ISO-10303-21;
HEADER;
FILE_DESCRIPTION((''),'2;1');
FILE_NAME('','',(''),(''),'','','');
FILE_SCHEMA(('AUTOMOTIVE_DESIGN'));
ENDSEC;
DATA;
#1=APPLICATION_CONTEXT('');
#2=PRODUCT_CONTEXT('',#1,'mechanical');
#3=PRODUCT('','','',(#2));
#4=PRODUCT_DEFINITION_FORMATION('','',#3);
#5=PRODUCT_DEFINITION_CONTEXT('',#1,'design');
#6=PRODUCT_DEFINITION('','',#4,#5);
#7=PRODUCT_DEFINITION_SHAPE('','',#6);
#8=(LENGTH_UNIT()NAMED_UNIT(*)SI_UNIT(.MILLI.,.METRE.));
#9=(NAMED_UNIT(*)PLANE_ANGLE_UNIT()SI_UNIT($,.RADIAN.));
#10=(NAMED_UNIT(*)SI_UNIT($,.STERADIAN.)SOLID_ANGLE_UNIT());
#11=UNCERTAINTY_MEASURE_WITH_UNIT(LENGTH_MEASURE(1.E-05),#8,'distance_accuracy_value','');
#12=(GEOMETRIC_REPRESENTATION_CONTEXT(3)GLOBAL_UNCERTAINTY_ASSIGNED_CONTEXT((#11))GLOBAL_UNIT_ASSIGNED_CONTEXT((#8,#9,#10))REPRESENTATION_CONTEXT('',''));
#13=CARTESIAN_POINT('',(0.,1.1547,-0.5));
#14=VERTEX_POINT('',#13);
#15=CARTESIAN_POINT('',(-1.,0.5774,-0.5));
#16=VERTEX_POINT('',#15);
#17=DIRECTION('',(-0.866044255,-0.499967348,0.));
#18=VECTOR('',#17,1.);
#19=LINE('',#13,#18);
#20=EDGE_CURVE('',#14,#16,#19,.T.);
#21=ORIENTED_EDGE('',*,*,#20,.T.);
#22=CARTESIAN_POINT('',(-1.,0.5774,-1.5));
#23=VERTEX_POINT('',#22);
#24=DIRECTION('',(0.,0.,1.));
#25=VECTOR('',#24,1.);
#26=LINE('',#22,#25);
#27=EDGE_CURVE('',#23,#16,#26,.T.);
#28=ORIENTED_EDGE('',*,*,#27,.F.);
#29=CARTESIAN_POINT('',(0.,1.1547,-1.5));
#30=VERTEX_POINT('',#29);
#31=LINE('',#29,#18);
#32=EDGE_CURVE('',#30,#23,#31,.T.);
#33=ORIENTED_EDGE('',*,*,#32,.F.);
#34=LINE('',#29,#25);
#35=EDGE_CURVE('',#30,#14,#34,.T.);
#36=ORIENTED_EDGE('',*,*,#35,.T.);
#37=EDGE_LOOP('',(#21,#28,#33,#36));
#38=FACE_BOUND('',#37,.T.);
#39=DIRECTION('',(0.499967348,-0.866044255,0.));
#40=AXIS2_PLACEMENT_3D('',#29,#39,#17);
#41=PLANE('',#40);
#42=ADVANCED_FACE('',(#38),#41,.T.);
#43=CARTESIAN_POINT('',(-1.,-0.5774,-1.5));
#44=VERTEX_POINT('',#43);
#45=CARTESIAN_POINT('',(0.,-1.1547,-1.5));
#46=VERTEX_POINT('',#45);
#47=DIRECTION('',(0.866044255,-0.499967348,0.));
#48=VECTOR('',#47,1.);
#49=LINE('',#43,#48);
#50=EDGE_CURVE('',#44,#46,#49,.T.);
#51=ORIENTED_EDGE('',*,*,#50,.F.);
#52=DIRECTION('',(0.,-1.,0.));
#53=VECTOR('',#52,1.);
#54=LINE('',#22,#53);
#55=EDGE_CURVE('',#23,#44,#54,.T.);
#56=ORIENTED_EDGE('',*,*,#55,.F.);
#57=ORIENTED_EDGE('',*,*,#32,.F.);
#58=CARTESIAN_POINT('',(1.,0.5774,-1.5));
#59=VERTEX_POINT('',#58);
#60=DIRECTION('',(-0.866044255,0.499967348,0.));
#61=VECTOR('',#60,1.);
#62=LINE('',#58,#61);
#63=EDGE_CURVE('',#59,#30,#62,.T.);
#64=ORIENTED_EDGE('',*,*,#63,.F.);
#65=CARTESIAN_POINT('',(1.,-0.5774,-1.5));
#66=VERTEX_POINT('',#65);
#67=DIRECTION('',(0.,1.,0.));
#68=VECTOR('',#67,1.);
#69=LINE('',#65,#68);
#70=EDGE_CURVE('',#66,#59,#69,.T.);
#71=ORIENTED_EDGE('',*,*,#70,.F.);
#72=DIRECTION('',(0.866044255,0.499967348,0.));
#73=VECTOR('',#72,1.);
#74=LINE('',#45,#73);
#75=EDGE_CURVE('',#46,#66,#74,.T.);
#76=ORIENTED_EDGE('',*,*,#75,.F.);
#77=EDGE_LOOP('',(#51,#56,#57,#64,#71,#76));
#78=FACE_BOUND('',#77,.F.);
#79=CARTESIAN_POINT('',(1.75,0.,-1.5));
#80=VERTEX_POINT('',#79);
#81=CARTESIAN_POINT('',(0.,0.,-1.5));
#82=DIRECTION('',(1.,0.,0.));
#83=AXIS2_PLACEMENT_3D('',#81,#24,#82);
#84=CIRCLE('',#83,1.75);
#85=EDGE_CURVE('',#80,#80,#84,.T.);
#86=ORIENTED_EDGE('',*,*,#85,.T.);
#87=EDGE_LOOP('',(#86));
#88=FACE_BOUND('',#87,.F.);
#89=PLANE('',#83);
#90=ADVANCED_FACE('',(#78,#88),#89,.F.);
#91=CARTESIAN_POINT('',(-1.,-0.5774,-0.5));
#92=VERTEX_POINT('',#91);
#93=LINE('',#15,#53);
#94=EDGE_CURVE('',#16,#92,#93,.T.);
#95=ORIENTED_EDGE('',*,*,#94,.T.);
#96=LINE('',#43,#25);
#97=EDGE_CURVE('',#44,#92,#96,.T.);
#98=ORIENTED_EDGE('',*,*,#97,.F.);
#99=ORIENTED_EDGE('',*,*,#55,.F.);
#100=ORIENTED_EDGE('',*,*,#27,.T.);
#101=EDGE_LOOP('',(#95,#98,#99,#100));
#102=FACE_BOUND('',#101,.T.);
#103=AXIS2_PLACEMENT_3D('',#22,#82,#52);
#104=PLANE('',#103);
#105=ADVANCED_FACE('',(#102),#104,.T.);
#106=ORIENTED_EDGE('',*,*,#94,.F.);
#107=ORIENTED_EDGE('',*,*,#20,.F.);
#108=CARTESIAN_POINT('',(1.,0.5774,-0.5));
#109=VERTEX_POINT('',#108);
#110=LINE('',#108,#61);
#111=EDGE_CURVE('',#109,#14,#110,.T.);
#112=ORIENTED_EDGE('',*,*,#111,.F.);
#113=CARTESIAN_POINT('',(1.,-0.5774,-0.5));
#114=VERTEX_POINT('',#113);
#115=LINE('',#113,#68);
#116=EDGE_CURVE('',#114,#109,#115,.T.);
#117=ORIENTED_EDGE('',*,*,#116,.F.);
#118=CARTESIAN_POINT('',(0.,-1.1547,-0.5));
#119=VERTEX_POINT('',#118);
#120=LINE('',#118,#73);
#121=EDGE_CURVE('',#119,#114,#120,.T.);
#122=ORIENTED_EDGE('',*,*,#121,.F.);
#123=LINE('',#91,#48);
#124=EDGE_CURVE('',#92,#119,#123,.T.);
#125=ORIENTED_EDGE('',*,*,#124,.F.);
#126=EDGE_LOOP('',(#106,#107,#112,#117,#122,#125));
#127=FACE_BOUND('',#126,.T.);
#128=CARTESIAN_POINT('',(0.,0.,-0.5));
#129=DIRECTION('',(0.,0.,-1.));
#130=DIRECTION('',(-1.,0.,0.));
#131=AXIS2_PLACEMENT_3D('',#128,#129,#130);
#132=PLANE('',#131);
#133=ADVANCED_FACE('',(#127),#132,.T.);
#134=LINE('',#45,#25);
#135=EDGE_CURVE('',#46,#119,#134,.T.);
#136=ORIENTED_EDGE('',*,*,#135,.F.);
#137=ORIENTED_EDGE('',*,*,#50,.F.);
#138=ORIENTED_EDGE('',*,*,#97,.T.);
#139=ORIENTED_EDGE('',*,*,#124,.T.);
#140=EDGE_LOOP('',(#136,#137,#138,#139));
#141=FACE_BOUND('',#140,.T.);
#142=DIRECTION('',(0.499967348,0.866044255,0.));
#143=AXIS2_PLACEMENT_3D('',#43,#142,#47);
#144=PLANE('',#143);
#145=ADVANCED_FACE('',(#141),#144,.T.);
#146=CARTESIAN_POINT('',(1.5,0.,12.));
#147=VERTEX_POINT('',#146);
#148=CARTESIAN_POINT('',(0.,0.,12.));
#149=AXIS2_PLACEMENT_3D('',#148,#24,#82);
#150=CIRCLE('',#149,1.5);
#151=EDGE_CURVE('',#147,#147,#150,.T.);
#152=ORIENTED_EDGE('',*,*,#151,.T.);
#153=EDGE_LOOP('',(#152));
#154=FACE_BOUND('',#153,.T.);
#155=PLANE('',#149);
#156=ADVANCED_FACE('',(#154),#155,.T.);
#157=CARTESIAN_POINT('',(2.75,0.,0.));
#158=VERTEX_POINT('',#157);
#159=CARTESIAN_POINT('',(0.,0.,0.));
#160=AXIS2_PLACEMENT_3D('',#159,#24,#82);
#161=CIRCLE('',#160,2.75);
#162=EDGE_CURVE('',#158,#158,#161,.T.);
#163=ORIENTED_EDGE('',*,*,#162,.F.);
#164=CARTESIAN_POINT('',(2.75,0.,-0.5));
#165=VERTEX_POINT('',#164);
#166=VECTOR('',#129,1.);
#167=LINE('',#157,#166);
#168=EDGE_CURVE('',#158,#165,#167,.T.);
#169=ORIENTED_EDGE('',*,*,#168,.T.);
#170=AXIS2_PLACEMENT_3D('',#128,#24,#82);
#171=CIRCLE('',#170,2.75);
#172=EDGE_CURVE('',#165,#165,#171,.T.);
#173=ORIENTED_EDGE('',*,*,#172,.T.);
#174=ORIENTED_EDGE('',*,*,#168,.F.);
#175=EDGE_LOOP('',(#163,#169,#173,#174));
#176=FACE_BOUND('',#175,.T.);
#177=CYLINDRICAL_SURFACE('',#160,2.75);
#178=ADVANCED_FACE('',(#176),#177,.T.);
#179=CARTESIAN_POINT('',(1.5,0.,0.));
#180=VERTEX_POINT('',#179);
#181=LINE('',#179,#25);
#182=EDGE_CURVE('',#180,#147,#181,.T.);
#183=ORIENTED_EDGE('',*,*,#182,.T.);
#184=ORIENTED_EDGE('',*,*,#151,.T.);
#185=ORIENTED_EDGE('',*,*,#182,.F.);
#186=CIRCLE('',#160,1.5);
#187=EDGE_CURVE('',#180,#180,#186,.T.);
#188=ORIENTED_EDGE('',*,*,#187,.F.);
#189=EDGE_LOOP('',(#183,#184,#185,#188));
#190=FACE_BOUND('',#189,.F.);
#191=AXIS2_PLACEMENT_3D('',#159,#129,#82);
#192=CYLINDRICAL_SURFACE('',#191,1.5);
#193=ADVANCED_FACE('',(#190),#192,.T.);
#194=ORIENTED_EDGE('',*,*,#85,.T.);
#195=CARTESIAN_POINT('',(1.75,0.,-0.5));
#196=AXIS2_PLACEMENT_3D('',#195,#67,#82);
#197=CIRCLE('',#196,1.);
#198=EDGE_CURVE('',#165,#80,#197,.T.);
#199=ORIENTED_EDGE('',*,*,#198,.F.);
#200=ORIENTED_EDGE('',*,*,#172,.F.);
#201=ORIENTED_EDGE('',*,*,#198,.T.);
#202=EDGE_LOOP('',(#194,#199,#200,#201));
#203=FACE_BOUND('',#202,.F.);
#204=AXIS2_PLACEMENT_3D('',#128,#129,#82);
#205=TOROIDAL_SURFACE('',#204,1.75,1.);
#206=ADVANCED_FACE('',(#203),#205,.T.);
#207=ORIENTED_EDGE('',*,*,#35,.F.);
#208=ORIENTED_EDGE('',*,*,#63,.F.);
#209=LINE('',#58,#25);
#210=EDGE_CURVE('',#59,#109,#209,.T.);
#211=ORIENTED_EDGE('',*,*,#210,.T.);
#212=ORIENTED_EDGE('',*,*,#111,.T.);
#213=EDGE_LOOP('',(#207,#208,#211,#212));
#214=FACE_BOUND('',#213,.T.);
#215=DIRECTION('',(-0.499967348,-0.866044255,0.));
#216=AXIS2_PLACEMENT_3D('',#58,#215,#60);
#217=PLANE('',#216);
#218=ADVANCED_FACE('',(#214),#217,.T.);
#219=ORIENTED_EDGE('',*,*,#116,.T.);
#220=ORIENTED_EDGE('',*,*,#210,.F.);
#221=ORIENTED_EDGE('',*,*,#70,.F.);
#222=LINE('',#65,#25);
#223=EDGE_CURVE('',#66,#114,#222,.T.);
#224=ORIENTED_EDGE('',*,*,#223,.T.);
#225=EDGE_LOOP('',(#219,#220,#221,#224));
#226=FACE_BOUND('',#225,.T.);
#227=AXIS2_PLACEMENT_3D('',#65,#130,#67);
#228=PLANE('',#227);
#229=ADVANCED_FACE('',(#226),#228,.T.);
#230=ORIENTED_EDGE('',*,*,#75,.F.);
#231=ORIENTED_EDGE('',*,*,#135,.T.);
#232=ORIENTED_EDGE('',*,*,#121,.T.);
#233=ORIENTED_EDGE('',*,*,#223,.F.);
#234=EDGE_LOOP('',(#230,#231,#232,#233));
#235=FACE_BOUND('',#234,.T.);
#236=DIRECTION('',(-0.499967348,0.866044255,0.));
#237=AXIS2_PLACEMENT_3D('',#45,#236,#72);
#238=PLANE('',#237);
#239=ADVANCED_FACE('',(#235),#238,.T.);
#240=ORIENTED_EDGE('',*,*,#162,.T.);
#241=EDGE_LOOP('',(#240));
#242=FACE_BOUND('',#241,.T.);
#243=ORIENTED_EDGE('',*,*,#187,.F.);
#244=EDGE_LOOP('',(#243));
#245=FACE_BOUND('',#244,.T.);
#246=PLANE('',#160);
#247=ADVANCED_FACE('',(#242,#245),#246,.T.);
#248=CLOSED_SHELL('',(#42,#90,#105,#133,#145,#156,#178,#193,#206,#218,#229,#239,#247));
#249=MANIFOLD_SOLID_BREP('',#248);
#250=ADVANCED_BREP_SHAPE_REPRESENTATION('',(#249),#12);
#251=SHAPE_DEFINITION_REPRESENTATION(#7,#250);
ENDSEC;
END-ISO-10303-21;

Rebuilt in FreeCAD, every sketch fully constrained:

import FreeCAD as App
import Part
import Sketcher

V = App.Vector
Q = App.Units.Quantity


def edges_at(feature, points):
    """Names of the edges that pass closest to the given points."""
    edges = feature.Shape.Edges
    near = lambda p: min(range(len(edges)), key=lambda i: edges[i].distToShape(Part.Vertex(*p))[0])
    return sorted({f"Edge{near(p) + 1}" for p in points})

doc = App.newDocument("Part")
params = doc.addObject("Spreadsheet::Sheet", "Params")
for row, (alias, value) in enumerate([
    ("sketch1_diameter", "3 mm"),
    ("pad1_length", "12 mm"),
    ("sketch2_diameter", "5.5 mm"),
    ("pad2_length", "1.5 mm"),
    ("pocket1_length", "1 mm"),
    ("fillet_radius", "1 mm"),
], start=1):
    params.set(f"A{row}", alias)
    params.set(f"B{row}", "=" + value)
    params.setAlias(f"B{row}", alias)

body = doc.addObject("PartDesign::Body", "Body")

sketch1 = doc.addObject("Sketcher::SketchObject", "Sketch")
body.addObject(sketch1)
sketch1.AttachmentSupport = (doc.XY_Plane, [""])
sketch1.MapMode = "FlatFace"
sketch1.addGeometry(Part.Circle(V(0, 0, 0), V(0, 0, 1), 1.5), False)
sketch1.addConstraint([
    Sketcher.Constraint("Coincident", 0, 3, -1, 1),
    Sketcher.Constraint("Diameter", 0, Q("3 mm")),
])
sketch1.setExpression("Constraints[1]", "Params.sketch1_diameter")
pad1 = doc.addObject("PartDesign::Pad", "Pad")
body.addObject(pad1)
pad1.Profile = sketch1
pad1.setExpression("Length", "Params.pad1_length")

sketch2 = doc.addObject("Sketcher::SketchObject", "Sketch001")
body.addObject(sketch2)
sketch2.AttachmentSupport = (doc.XY_Plane, [""])
sketch2.MapMode = "FlatFace"
sketch2.addGeometry(Part.Circle(V(0, 0, 0), V(0, 0, 1), 2.8), False)
sketch2.addConstraint([
    Sketcher.Constraint("Coincident", 0, 3, -1, 1),
    Sketcher.Constraint("Diameter", 0, Q("5.5 mm")),
])
sketch2.setExpression("Constraints[1]", "Params.sketch2_diameter")
pad2 = doc.addObject("PartDesign::Pad", "Pad001")
body.addObject(pad2)
pad2.Profile = sketch2
pad2.setExpression("Length", "Params.pad2_length")
pad2.Reversed = True

sketch3 = doc.addObject("Sketcher::SketchObject", "Sketch002")
body.addObject(sketch3)
sketch3.AttachmentSupport = (doc.XY_Plane, [""])
sketch3.MapMode = "FlatFace"
sketch3.AttachmentOffset = App.Placement(V(0, 0, -1.5), App.Rotation())
sketch3.addGeometry([
    Part.LineSegment(V(-1, 0.6, 0), V(0, 1.2, 0)),
    Part.LineSegment(V(0, 1.2, 0), V(1, 0.6, 0)),
    Part.LineSegment(V(1, 0.6, 0), V(1, -0.6, 0)),
    Part.LineSegment(V(1, -0.6, 0), V(0, -1.2, 0)),
    Part.LineSegment(V(0, -1.2, 0), V(-1, -0.6, 0)),
    Part.LineSegment(V(-1, -0.6, 0), V(-1, 0.6, 0)),
], False)
sketch3.addConstraint([
    Sketcher.Constraint("Coincident", 0, 2, 1, 1),
    Sketcher.Constraint("Coincident", 1, 2, 2, 1),
    Sketcher.Constraint("Coincident", 2, 2, 3, 1),
    Sketcher.Constraint("Coincident", 3, 2, 4, 1),
    Sketcher.Constraint("Coincident", 4, 2, 5, 1),
    Sketcher.Constraint("Coincident", 5, 2, 0, 1),
    Sketcher.Constraint("Vertical", 2),
    Sketcher.Constraint("Vertical", 5),
    Sketcher.Constraint("Symmetric", 0, 2, 3, 2, -1, 1),
    Sketcher.Constraint("Symmetric", 1, 2, 4, 2, -1, 1),
    Sketcher.Constraint("PointOnObject", 0, 2, -2),
    Sketcher.Constraint("Parallel", 0, 3),
    Sketcher.Constraint("Horizontal", 2, 2, 4, 2),
    Sketcher.Constraint("DistanceX", 4, 2, 2, 2, Q("2 mm")),
    Sketcher.Constraint("DistanceY", 2, 2, 2, 1, Q("1.1548 mm")),
    Sketcher.Constraint("DistanceY", 2, 2, 0, 2, Q("1.732 mm")),
])
pocket1 = doc.addObject("PartDesign::Pocket", "Pocket")
body.addObject(pocket1)
pocket1.Profile = sketch3
pocket1.setExpression("Length", "Params.pocket1_length")
pocket1.Reversed = True
doc.recompute()

fillet = doc.addObject("PartDesign::Fillet", "Fillet")
body.addObject(fillet)
fillet.Base = (pocket1, edges_at(pocket1, [(-2.75, 0, -1.5)]))
fillet.setExpression("Radius", "Params.fillet_radius")

doc.recompute()
